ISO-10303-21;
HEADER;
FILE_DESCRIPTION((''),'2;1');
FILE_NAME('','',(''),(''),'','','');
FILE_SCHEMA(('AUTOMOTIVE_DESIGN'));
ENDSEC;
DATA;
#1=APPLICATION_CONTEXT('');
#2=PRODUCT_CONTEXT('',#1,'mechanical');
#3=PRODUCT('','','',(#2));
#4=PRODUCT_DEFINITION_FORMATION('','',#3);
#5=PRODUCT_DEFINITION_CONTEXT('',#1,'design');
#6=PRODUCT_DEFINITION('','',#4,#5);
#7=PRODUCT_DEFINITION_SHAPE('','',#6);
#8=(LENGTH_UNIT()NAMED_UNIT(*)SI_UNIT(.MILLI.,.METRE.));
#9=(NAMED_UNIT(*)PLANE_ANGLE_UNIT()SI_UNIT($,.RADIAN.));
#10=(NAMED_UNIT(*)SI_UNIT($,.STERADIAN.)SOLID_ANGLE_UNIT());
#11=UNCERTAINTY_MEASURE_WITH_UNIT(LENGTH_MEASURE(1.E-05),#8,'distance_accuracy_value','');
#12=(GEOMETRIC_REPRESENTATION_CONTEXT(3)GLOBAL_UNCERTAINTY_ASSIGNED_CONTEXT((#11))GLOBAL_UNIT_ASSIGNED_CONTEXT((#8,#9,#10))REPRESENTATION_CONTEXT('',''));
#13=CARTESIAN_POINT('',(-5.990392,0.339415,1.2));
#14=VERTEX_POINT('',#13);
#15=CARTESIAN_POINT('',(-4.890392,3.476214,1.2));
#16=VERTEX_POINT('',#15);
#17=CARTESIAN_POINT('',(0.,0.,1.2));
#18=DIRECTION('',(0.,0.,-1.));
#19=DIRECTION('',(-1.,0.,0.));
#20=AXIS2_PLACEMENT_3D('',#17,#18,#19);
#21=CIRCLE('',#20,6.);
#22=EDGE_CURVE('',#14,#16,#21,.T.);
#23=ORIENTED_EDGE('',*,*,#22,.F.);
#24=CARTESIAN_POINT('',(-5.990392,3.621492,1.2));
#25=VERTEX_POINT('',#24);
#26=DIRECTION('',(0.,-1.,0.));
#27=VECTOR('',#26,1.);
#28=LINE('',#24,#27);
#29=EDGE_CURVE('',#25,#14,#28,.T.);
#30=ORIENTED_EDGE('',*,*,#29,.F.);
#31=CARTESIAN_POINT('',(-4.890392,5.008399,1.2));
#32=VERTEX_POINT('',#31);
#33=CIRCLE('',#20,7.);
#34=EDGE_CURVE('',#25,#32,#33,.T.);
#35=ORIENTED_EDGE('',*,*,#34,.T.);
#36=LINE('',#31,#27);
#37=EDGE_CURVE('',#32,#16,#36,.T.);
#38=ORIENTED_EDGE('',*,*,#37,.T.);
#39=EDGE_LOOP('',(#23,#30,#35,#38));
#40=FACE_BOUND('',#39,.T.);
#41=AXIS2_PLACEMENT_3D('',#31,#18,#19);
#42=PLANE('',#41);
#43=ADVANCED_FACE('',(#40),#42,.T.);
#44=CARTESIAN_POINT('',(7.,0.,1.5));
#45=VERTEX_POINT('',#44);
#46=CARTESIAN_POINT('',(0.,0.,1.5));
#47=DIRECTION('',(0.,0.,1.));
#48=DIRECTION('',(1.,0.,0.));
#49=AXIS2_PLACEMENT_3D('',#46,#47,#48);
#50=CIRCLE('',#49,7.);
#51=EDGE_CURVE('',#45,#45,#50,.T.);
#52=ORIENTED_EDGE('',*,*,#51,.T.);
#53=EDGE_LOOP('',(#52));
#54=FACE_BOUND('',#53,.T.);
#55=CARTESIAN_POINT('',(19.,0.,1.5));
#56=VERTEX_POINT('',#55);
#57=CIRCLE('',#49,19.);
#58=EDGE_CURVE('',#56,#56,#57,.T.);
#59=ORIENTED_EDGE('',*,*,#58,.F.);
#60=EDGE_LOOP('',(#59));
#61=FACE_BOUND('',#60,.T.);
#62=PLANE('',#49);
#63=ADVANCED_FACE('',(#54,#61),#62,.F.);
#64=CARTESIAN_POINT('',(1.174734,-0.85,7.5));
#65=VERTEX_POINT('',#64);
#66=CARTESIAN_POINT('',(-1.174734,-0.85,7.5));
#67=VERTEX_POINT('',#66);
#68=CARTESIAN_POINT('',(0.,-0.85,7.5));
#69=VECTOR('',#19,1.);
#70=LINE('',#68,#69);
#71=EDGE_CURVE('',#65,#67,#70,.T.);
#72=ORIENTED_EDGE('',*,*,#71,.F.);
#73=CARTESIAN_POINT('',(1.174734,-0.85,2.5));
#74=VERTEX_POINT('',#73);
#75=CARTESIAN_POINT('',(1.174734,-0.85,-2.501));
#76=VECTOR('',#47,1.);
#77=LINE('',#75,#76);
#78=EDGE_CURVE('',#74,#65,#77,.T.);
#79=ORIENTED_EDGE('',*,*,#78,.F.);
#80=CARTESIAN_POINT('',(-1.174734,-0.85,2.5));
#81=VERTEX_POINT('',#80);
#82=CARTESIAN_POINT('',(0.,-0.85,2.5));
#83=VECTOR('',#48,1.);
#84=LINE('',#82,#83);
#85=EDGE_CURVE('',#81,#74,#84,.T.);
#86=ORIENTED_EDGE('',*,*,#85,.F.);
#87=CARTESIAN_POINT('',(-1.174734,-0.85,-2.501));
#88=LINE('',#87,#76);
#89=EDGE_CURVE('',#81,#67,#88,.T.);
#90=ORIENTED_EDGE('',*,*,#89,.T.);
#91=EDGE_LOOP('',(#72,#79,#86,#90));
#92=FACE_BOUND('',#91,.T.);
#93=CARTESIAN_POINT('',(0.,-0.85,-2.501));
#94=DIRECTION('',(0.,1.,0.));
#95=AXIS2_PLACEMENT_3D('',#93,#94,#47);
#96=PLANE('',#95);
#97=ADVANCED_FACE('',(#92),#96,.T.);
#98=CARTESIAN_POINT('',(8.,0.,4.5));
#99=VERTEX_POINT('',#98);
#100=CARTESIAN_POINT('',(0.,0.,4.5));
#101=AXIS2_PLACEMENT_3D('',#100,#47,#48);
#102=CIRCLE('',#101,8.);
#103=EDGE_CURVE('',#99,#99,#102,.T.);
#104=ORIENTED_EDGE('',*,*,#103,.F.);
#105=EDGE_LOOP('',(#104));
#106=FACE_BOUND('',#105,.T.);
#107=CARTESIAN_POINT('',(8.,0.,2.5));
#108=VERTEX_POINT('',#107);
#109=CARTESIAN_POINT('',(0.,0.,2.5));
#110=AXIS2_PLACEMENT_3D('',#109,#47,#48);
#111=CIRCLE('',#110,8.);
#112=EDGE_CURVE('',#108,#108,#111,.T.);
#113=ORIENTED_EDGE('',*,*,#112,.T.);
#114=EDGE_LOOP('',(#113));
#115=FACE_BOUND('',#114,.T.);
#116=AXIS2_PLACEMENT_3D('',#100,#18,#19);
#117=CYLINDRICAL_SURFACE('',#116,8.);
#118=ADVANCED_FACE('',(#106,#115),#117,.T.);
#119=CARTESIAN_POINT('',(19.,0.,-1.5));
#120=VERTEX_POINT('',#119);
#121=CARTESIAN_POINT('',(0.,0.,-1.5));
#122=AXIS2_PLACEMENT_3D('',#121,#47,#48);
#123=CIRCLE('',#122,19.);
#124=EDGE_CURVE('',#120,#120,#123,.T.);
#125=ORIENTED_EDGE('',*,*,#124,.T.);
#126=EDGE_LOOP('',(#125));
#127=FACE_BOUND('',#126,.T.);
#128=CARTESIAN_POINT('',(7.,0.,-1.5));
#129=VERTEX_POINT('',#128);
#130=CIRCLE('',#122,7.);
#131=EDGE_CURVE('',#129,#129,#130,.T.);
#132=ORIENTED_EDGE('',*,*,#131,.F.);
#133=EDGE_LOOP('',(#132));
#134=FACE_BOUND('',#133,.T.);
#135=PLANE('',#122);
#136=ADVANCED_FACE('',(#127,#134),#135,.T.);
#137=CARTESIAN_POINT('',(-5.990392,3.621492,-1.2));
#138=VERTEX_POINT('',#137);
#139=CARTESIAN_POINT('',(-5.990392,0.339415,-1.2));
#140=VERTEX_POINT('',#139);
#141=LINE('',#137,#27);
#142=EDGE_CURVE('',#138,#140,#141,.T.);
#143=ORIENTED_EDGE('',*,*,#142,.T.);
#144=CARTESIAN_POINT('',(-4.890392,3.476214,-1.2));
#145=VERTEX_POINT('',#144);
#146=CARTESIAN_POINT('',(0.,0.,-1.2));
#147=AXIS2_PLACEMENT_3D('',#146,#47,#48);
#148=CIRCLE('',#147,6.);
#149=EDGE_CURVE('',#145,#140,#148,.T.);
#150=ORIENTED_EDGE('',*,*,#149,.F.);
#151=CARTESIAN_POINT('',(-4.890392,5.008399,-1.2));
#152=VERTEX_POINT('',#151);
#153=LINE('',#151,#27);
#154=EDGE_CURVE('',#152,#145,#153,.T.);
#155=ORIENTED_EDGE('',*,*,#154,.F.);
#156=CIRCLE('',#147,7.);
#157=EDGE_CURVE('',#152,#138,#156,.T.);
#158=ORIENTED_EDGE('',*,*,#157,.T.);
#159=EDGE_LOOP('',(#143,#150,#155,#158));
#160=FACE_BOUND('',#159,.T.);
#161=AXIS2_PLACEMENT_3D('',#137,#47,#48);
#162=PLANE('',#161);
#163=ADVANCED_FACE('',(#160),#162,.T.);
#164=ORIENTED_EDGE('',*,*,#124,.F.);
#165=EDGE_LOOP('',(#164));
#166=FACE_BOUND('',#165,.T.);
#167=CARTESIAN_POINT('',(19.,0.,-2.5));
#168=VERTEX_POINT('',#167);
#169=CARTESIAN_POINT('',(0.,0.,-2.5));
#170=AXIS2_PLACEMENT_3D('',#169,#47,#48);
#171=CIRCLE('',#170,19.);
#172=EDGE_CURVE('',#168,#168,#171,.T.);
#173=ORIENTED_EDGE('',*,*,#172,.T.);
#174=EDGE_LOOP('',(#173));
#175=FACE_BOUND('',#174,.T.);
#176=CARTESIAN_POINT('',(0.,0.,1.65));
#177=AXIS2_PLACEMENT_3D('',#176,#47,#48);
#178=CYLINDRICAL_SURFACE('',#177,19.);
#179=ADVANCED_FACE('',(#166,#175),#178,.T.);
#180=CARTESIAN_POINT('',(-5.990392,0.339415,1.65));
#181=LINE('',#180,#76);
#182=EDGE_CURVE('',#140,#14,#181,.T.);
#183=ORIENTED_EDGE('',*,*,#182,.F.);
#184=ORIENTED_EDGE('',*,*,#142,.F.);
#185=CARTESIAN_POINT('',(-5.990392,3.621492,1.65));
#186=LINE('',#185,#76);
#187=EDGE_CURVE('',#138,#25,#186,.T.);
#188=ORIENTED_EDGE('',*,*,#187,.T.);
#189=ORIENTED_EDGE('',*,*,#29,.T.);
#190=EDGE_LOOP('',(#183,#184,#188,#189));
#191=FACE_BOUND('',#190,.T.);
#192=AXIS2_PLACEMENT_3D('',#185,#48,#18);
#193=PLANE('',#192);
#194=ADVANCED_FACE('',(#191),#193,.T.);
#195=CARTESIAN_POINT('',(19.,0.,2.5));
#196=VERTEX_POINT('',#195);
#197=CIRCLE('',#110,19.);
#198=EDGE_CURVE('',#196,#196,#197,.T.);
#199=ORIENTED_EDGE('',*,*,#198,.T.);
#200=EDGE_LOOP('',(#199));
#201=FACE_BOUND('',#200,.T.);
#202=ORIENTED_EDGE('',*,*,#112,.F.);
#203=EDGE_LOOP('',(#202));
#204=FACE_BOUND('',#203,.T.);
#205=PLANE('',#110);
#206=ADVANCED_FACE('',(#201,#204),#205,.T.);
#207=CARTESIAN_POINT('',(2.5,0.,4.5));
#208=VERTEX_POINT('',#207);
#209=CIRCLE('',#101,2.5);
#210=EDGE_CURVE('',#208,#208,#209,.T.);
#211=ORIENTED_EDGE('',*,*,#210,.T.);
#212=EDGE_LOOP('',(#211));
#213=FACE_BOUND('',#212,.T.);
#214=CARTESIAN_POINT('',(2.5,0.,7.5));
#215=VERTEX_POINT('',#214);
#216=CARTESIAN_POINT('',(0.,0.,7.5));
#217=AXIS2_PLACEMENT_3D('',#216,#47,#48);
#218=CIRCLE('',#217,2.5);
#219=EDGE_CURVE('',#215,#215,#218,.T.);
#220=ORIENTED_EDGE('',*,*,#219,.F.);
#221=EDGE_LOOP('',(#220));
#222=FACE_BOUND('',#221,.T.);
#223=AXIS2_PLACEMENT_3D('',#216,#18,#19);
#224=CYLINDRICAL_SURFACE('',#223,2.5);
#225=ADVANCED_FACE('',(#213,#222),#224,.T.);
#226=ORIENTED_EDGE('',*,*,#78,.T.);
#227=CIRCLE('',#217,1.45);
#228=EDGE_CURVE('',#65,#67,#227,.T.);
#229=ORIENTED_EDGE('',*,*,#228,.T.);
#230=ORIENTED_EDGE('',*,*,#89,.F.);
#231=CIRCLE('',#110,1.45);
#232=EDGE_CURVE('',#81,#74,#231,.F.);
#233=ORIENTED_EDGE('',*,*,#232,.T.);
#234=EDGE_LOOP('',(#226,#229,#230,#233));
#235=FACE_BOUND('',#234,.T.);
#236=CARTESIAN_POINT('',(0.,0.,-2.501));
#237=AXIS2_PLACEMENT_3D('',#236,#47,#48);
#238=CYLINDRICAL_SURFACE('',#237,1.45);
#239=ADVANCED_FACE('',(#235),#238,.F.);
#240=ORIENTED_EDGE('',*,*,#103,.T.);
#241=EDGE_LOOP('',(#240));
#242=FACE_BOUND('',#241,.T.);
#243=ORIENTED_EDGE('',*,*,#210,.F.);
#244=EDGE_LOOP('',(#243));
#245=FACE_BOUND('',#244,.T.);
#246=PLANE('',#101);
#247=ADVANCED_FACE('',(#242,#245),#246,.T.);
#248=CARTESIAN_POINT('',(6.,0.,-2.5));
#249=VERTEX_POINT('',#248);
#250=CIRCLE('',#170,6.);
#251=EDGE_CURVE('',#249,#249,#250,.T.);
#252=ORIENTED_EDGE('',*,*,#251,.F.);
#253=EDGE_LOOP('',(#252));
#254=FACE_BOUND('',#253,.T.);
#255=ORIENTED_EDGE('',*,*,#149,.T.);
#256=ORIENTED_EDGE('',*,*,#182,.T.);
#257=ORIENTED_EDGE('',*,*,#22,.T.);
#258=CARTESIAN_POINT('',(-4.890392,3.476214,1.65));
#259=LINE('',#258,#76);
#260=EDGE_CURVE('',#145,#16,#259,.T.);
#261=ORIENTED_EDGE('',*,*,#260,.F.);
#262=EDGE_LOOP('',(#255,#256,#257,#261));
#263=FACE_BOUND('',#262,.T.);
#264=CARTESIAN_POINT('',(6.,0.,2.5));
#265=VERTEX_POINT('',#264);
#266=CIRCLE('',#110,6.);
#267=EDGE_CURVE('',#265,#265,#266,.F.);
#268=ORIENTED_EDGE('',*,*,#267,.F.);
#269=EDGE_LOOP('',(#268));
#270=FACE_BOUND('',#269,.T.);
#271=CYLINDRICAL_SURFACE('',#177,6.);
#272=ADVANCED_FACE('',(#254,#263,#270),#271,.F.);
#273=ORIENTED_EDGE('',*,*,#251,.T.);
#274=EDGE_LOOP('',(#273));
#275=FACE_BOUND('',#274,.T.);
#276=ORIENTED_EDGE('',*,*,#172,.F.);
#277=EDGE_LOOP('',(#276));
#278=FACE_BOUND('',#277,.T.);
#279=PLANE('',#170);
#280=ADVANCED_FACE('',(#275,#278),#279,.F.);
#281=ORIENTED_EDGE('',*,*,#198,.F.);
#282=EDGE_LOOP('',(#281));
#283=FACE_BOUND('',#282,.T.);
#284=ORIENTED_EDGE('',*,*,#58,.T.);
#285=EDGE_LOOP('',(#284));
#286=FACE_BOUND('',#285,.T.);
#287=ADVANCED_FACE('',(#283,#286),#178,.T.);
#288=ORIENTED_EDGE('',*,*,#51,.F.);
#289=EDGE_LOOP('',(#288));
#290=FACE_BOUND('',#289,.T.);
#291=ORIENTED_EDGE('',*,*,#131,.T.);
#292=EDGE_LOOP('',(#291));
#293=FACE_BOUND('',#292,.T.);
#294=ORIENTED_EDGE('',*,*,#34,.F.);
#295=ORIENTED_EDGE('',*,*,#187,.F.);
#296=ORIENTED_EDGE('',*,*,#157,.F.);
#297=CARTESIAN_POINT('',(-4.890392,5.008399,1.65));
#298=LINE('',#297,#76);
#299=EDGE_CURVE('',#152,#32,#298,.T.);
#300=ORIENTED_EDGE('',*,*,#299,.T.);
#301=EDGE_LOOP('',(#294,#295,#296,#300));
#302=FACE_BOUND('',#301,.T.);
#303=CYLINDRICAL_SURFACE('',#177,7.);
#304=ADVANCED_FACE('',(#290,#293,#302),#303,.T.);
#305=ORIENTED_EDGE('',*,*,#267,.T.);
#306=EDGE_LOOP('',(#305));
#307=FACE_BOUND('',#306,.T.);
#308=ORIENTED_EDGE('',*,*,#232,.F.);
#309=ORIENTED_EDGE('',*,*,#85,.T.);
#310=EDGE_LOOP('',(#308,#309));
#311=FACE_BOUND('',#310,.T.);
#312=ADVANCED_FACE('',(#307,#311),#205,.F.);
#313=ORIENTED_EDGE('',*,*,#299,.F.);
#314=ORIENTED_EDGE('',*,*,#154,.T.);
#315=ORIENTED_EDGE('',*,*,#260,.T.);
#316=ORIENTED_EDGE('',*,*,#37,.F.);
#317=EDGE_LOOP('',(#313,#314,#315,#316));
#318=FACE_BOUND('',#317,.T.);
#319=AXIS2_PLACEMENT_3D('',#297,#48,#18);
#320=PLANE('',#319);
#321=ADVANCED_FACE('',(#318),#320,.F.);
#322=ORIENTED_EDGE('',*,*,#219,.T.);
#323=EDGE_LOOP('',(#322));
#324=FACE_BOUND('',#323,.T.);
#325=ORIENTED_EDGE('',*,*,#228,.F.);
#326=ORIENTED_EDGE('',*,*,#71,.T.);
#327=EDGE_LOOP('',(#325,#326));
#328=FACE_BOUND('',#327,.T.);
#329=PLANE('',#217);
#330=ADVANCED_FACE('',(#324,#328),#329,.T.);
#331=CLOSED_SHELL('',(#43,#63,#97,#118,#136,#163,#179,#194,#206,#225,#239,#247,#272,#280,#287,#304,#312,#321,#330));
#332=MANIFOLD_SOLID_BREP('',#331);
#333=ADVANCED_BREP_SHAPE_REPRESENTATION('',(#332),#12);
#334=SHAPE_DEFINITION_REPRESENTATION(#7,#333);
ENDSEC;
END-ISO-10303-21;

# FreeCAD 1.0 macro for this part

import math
import FreeCAD as App
import Part
import Sketcher

V = App.Vector
Q = App.Units.Quantity

doc = App.newDocument("Part")
body = doc.addObject("PartDesign::Body", "Body")

sketch1 = body.newObject("Sketcher::SketchObject", "Sketch")
sketch1.AttachmentSupport = (doc.getObject("YZ_Plane"), [""])
sketch1.MapMode = "FlatFace"
sketch1.addGeometry([
    Part.LineSegment(V(6, -2.5, 0), V(19, -2.5, 0)),
    Part.LineSegment(V(19, -2.5, 0), V(19, -1.5, 0)),
    Part.LineSegment(V(19, -1.5, 0), V(7, -1.5, 0)),
    Part.LineSegment(V(7, -1.5, 0), V(7, 1.5, 0)),
    Part.LineSegment(V(7, 1.5, 0), V(19, 1.5, 0)),
    Part.LineSegment(V(19, 1.5, 0), V(19, 2.5, 0)),
    Part.LineSegment(V(19, 2.5, 0), V(6, 2.5, 0)),
    Part.LineSegment(V(6, 2.5, 0), V(6, -2.5, 0)),
], False)
sketch1.addConstraint([
    Sketcher.Constraint("Coincident", 0, 2, 1, 1),
    Sketcher.Constraint("Coincident", 1, 2, 2, 1),
    Sketcher.Constraint("Coincident", 2, 2, 3, 1),
    Sketcher.Constraint("Coincident", 3, 2, 4, 1),
    Sketcher.Constraint("Coincident", 4, 2, 5, 1),
    Sketcher.Constraint("Coincident", 5, 2, 6, 1),
    Sketcher.Constraint("Coincident", 6, 2, 7, 1),
    Sketcher.Constraint("Coincident", 7, 2, 0, 1),
    Sketcher.Constraint("Horizontal", 0),
    Sketcher.Constraint("Vertical", 1),
    Sketcher.Constraint("Horizontal", 2),
    Sketcher.Constraint("Vertical", 3),
    Sketcher.Constraint("Horizontal", 4),
    Sketcher.Constraint("Vertical", 5),
    Sketcher.Constraint("Horizontal", 6),
    Sketcher.Constraint("Vertical", 7),
    Sketcher.Constraint("Symmetric", 1, 2, 4, 2, -1),
    Sketcher.Constraint("Equal", 1, 5),
    Sketcher.Constraint("DistanceX", 0, 1, 0, 2, Q("13 mm")),
    Sketcher.Constraint("DistanceX", 2, 2, 2, 1, Q("12 mm")),
    Sketcher.Constraint("DistanceY", 1, 1, 1, 2, Q("1 mm")),
    Sketcher.Constraint("DistanceY", 3, 1, 3, 2, Q("3 mm")),
    Sketcher.Constraint("DistanceX", -1, 1, 0, 2, Q("19 mm")),
])
revolution = body.newObject("PartDesign::Revolution", "Revolution")
revolution.Profile = sketch1
revolution.ReferenceAxis = (sketch1, ["V_Axis"])
revolution.Angle = 360

sketch2 = body.newObject("Sketcher::SketchObject", "Sketch001")
sketch2.AttachmentSupport = (doc.getObject("XZ_Plane"), [""])
sketch2.MapMode = "FlatFace"
sketch2.AttachmentOffset = App.Placement(V(0, 0, -0.339415), App.Rotation())
sketch2.addGeometry([
    Part.LineSegment(V(-6, -1.2, 0), V(-6, 1.2, 0)),
    Part.LineSegment(V(-6, 1.2, 0), V(-4.9, 1.2, 0)),
    Part.LineSegment(V(-4.9, 1.2, 0), V(-4.9, -1.2, 0)),
    Part.LineSegment(V(-4.9, -1.2, 0), V(-6, -1.2, 0)),
], False)
sketch2.addConstraint([
    Sketcher.Constraint("Coincident", 0, 2, 1, 1),
    Sketcher.Constraint("Coincident", 1, 2, 2, 1),
    Sketcher.Constraint("Coincident", 2, 2, 3, 1),
    Sketcher.Constraint("Coincident", 3, 2, 0, 1),
    Sketcher.Constraint("Vertical", 0),
    Sketcher.Constraint("Horizontal", 1),
    Sketcher.Constraint("Vertical", 2),
    Sketcher.Constraint("Horizontal", 3),
    Sketcher.Constraint("DistanceX", 1, 1, 1, 2, Q("1.1 mm")),
    Sketcher.Constraint("DistanceY", 0, 1, 0, 2, Q("2.4 mm")),
    Sketcher.Constraint("DistanceY", -1, 1, 0, 2, Q("1.2 mm")),
    Sketcher.Constraint("DistanceX", 0, 2, -1, 1, Q("5.990392 mm")),
])
pocket1 = body.newObject("PartDesign::Pocket", "Pocket")
pocket1.Profile = sketch2
pocket1.Length = 4.668984

sketch3 = body.newObject("Sketcher::SketchObject", "Sketch002")
sketch3.AttachmentSupport = (doc.getObject("XY_Plane"), [""])
sketch3.MapMode = "FlatFace"
sketch3.AttachmentOffset = App.Placement(V(0, 0, 2.5), App.Rotation())
sketch3.addGeometry(Part.Circle(V(0, 0, 0), V(0, 0, 1), 8), False)
sketch3.addConstraint([
    Sketcher.Constraint("Coincident", 0, 3, -1, 1),
    Sketcher.Constraint("Diameter", 0, Q("16 mm")),
])
pad1 = body.newObject("PartDesign::Pad", "Pad")
pad1.Profile = sketch3
pad1.Length = 2

sketch4 = body.newObject("Sketcher::SketchObject", "Sketch003")
sketch4.AttachmentSupport = (doc.getObject("XY_Plane"), [""])
sketch4.MapMode = "FlatFace"
sketch4.AttachmentOffset = App.Placement(V(0, 0, 4.5), App.Rotation())
sketch4.addGeometry(Part.Circle(V(0, 0, 0), V(0, 0, 1), 2.5), False)
sketch4.addConstraint([
    Sketcher.Constraint("Coincident", 0, 3, -1, 1),
    Sketcher.Constraint("Diameter", 0, Q("5 mm")),
])
pad2 = body.newObject("PartDesign::Pad", "Pad001")
pad2.Profile = sketch4
pad2.Length = 3

sketch5 = body.newObject("Sketcher::SketchObject", "Sketch004")
sketch5.AttachmentSupport = (doc.getObject("XY_Plane"), [""])
sketch5.MapMode = "FlatFace"
sketch5.AttachmentOffset = App.Placement(V(0, 0, 7.5), App.Rotation())
sketch5.addGeometry([
    Part.LineSegment(V(-1.2, -0.8, 0), V(1.2, -0.8, 0)),
    Part.ArcOfCircle(Part.Circle(V(0, 0, 0), V(0, 0, 1), 1.4), math.radians(-36), math.radians(0)),
    Part.ArcOfCircle(Part.Circle(V(0, 0, 0), V(0, 0, 1), 1.4), math.radians(0), math.radians(216)),
], False)
sketch5.addConstraint([
    Sketcher.Constraint("Coincident", 0, 2, 1, 1),
    Sketcher.Constraint("Tangent", 1, 2, 2, 1),
    Sketcher.Constraint("Coincident", 2, 2, 0, 1),
    Sketcher.Constraint("Horizontal", 0),
    Sketcher.Constraint("Coincident", 1, 3, -1, 1),
    Sketcher.Constraint("Equal", 1, 2),
    Sketcher.Constraint("PointOnObject", 1, 2, -1),
    Sketcher.Constraint("Radius", 1, Q("1.45 mm")),
    Sketcher.Constraint("DistanceY", 0, 2, -1, 1, Q("0.85 mm")),
])
pocket2 = body.newObject("PartDesign::Pocket", "Pocket001")
pocket2.Profile = sketch5
pocket2.Type = "UpToFirst"

doc.recompute()
